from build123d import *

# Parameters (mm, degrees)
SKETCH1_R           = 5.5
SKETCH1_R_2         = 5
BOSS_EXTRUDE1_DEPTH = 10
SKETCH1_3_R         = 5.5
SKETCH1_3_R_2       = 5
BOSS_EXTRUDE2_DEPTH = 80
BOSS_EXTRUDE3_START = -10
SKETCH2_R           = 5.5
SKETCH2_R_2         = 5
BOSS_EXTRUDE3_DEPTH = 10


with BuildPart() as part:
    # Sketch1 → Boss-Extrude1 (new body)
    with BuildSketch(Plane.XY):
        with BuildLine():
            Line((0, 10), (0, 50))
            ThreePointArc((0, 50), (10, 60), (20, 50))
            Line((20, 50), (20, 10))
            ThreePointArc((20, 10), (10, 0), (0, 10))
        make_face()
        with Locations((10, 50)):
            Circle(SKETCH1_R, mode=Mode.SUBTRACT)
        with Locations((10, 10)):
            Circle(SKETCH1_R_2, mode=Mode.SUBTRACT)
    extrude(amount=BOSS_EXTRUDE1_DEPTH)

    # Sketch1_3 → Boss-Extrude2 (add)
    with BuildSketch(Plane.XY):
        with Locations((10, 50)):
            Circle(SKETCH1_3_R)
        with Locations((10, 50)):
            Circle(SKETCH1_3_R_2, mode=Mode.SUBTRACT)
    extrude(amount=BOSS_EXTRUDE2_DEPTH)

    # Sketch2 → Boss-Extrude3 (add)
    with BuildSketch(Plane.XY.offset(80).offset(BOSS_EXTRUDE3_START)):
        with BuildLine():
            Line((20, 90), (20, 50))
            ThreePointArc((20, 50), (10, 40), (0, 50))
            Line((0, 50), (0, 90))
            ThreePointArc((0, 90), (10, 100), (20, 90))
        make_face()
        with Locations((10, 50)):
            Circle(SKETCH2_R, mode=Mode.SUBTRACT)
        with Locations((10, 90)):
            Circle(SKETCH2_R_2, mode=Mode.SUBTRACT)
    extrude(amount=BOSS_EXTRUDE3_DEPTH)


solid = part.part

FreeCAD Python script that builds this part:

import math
import FreeCAD as App
import Part
import Sketcher
Q = App.Units.Quantity

doc = App.newDocument("Part")
params = doc.addObject("Spreadsheet::Sheet", "Params")
for row, (alias, value) in enumerate([
    ("sketch1_diameter", "10 mm"),
    ("sketch1_diameter2", "11 mm"),
    ("sketch1_radius", "10 mm"),
    ("sketch1_height", "40 mm"),
    ("pad1_length", "10 mm"),
    ("sketch2_diameter", "11 mm"),
    ("sketch2_diameter2", "10 mm"),
    ("pad2_length", "80 mm"),
    ("sketch3_diameter", "11 mm"),
    ("sketch3_diameter2", "10 mm"),
    ("sketch3_radius", "10 mm"),
    ("sketch3_height", "40 mm"),
    ("pad3_length", "10 mm"),
], start=1):
    params.set(f"A{row}", alias)
    params.set(f"B{row}", "=" + value)
    params.setAlias(f"B{row}", alias)

body = doc.addObject("PartDesign::Body", "Body")

# Sketch on XY plane
sketch1 = doc.addObject("Sketcher::SketchObject", "Sketch")
body.addObject(sketch1)
sketch1.AttachmentSupport = (doc.XY_Plane, [""])
sketch1.MapMode = "FlatFace"
sketch1.addGeometry([
    Part.LineSegment(App.Vector(0, 50, 0), App.Vector(0, 10, 0)),  # 0
    Part.ArcOfCircle(Part.Circle(App.Vector(10, 10, 0), App.Vector(0, 0, 1), 10), math.radians(180), math.radians(360)),  # 1
    Part.LineSegment(App.Vector(20, 10, 0), App.Vector(20, 50, 0)),  # 2
    Part.ArcOfCircle(Part.Circle(App.Vector(10, 50, 0), App.Vector(0, 0, 1), 10), math.radians(0), math.radians(180)),  # 3
    Part.Circle(App.Vector(10, 10, 0), App.Vector(0, 0, 1), 5),  # 4
    Part.Circle(App.Vector(10, 50, 0), App.Vector(0, 0, 1), 5.5),  # 5
], False)
sketch1.addConstraint([
    Sketcher.Constraint("Tangent", 0, 2, 1, 1),
    Sketcher.Constraint("Tangent", 1, 2, 2, 1),
    Sketcher.Constraint("Tangent", 2, 2, 3, 1),
    Sketcher.Constraint("Tangent", 3, 2, 0, 1),
    Sketcher.Constraint("Vertical", 0),
    Sketcher.Constraint("Vertical", 2),
    Sketcher.Constraint("Coincident", 4, 3, 1, 3),
    Sketcher.Constraint("Coincident", 5, 3, 3, 3),
    Sketcher.Constraint("PointOnObject", 0, 2, -2),
    Sketcher.Constraint("Diameter", 4, Q("10 mm")),
    Sketcher.Constraint("Diameter", 5, Q("11 mm")),
    Sketcher.Constraint("Radius", 1, Q("10 mm")),
    Sketcher.Constraint("DistanceY", 0, 2, 0, 1, Q("40 mm")),
    Sketcher.Constraint("DistanceY", -1, 1, 1, 3, Q("10 mm")),
])
sketch1.setExpression("Constraints[9]", "Params.sketch1_diameter")
sketch1.setExpression("Constraints[10]", "Params.sketch1_diameter2")
sketch1.setExpression("Constraints[11]", "Params.sketch1_radius")
sketch1.setExpression("Constraints[12]", "Params.sketch1_height")
pad1 = doc.addObject("PartDesign::Pad", "Pad")
body.addObject(pad1)
pad1.Profile = sketch1
pad1.setExpression("Length", "Params.pad1_length")

# Sketch on XY plane
sketch2 = doc.addObject("Sketcher::SketchObject", "Sketch001")
body.addObject(sketch2)
sketch2.AttachmentSupport = (doc.XY_Plane, [""])
sketch2.MapMode = "FlatFace"
sketch2.addGeometry([
    Part.Circle(App.Vector(10, 50, 0), App.Vector(0, 0, 1), 5.5),
    Part.Circle(App.Vector(10, 50, 0), App.Vector(0, 0, 1), 5),
], False)
sketch2.addConstraint([
    Sketcher.Constraint("Coincident", 1, 3, 0, 3),
    Sketcher.Constraint("Diameter", 0, Q("11 mm")),
    Sketcher.Constraint("Diameter", 1, Q("10 mm")),
    Sketcher.Constraint("DistanceX", -1, 1, 0, 3, Q("10 mm")),
    Sketcher.Constraint("DistanceY", -1, 1, 0, 3, Q("50 mm")),
])
sketch2.setExpression("Constraints[1]", "Params.sketch2_diameter")
sketch2.setExpression("Constraints[2]", "Params.sketch2_diameter2")
pad2 = doc.addObject("PartDesign::Pad", "Pad001")
body.addObject(pad2)
pad2.Profile = sketch2
pad2.setExpression("Length", "Params.pad2_length")

# Sketch on XY plane
sketch3 = doc.addObject("Sketcher::SketchObject", "Sketch002")
body.addObject(sketch3)
sketch3.AttachmentSupport = (doc.XY_Plane, [""])
sketch3.MapMode = "FlatFace"
sketch3.AttachmentOffset = App.Placement(App.Vector(0, 0, 70), App.Rotation())
sketch3.addGeometry([
    Part.LineSegment(App.Vector(20, 50, 0), App.Vector(20, 90, 0)),  # 0
    Part.ArcOfCircle(Part.Circle(App.Vector(10, 90, 0), App.Vector(0, 0, 1), 10), math.radians(0), math.radians(180)),  # 1
    Part.LineSegment(App.Vector(0, 90, 0), App.Vector(0, 50, 0)),  # 2
    Part.ArcOfCircle(Part.Circle(App.Vector(10, 50, 0), App.Vector(0, 0, 1), 10), math.radians(180), math.radians(360)),  # 3
    Part.Circle(App.Vector(10, 50, 0), App.Vector(0, 0, 1), 5.5),  # 4
    Part.Circle(App.Vector(10, 90, 0), App.Vector(0, 0, 1), 5),  # 5
], False)
sketch3.addConstraint([
    Sketcher.Constraint("Tangent", 0, 2, 1, 1),
    Sketcher.Constraint("Tangent", 1, 2, 2, 1),
    Sketcher.Constraint("Tangent", 2, 2, 3, 1),
    Sketcher.Constraint("Tangent", 3, 2, 0, 1),
    Sketcher.Constraint("Vertical", 0),
    Sketcher.Constraint("Vertical", 2),
    Sketcher.Constraint("Coincident", 4, 3, 3, 3),
    Sketcher.Constraint("Coincident", 5, 3, 1, 3),
    Sketcher.Constraint("PointOnObject", 1, 2, -2),
    Sketcher.Constraint("Diameter", 4, Q("11 mm")),
    Sketcher.Constraint("Diameter", 5, Q("10 mm")),
    Sketcher.Constraint("Radius", 1, Q("10 mm")),
    Sketcher.Constraint("DistanceY", 0, 1, 0, 2, Q("40 mm")),
    Sketcher.Constraint("DistanceY", -1, 1, 1, 3, Q("90 mm")),
])
sketch3.setExpression("Constraints[9]", "Params.sketch3_diameter")
sketch3.setExpression("Constraints[10]", "Params.sketch3_diameter2")
sketch3.setExpression("Constraints[11]", "Params.sketch3_radius")
sketch3.setExpression("Constraints[12]", "Params.sketch3_height")
pad3 = doc.addObject("PartDesign::Pad", "Pad002")
body.addObject(pad3)
pad3.Profile = sketch3
pad3.setExpression("Length", "Params.pad3_length")

doc.recompute()
